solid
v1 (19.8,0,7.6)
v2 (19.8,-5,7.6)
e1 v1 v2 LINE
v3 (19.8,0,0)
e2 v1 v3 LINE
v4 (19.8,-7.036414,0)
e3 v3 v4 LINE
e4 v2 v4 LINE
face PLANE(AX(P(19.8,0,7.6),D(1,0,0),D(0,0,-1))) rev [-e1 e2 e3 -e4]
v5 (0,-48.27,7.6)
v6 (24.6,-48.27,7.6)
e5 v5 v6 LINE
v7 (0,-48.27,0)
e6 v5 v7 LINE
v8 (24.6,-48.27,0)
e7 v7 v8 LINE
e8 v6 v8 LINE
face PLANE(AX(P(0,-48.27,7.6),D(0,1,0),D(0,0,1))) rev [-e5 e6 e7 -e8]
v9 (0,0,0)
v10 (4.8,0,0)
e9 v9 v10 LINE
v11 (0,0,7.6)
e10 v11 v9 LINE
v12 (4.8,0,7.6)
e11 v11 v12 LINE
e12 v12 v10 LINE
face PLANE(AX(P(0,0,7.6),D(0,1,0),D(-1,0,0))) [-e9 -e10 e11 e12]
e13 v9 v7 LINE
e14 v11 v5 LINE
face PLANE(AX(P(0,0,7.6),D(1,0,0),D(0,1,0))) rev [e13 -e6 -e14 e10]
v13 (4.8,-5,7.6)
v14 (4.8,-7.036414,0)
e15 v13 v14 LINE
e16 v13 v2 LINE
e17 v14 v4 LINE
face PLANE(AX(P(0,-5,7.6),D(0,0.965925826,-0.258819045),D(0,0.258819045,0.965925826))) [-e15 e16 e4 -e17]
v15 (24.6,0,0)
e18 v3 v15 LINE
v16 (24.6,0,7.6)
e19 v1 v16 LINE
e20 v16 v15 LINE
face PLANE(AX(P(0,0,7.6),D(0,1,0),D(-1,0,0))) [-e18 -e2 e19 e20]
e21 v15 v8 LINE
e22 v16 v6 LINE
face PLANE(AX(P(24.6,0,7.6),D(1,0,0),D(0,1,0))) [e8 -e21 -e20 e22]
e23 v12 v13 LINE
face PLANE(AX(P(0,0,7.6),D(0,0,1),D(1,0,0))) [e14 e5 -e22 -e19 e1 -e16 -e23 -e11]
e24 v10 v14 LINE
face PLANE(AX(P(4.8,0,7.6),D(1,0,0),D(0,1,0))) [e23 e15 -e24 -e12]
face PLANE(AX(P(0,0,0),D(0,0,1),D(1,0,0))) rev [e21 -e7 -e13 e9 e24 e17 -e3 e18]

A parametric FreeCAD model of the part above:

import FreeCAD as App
import Part
import Sketcher
from FreeCAD import Vector
Q = App.Units.Quantity


def faces_at(feature, points):
    """Names of the faces that lie closest to the given points."""
    faces = feature.Shape.Faces
    near = lambda p: min(range(len(faces)), key=lambda i: faces[i].distToShape(Part.Vertex(*p))[0])
    return sorted({f"Face{near(p) + 1}" for p in points})

doc = App.newDocument("Part")
params = doc.addObject("Spreadsheet::Sheet", "Params")
for row, (alias, value) in enumerate([
    ("sketch1_width", "15 mm"),
    ("sketch1_height", "5 mm"),
    ("sketch1_width2", "4.8 mm"),
    ("sketch1_height2", "48.27 mm"),
    ("pad1_length", "7.6 mm"),
    ("draft_angle", "15 deg"),
], start=1):
    params.set(f"A{row}", alias)
    params.set(f"B{row}", "=" + value)
    params.setAlias(f"B{row}", alias)

body = doc.addObject("PartDesign::Body", "Body")

sketch1 = body.newObject("Sketcher::SketchObject", "Sketch")
sketch1.AttachmentSupport = (doc.getObject("XY_Plane"), [""])
sketch1.MapMode = "FlatFace"
sketch1.addGeometry(Part.LineSegment(Vector(4.8, 0, 0), Vector(0, 0, 0)), False)
sketch1.addGeometry(Part.LineSegment(Vector(0, 0, 0), Vector(0, -48.27, 0)), False)
sketch1.addGeometry(Part.LineSegment(Vector(0, -48.27, 0), Vector(24.6, -48.27, 0)), False)
sketch1.addGeometry(Part.LineSegment(Vector(24.6, -48.27, 0), Vector(24.6, 0, 0)), False)
sketch1.addGeometry(Part.LineSegment(Vector(24.6, 0, 0), Vector(19.8, 0, 0)), False)
sketch1.addGeometry(Part.LineSegment(Vector(19.8, 0, 0), Vector(19.8, -5, 0)), False)
sketch1.addGeometry(Part.LineSegment(Vector(19.8, -5, 0), Vector(4.8, -5, 0)), False)
sketch1.addGeometry(Part.LineSegment(Vector(4.8, -5, 0), Vector(4.8, 0, 0)), False)
sketch1.addConstraint(Sketcher.Constraint("Coincident", 0, 2, 1, 1))
sketch1.addConstraint(Sketcher.Constraint("Coincident", 1, 2, 2, 1))
sketch1.addConstraint(Sketcher.Constraint("Coincident", 2, 2, 3, 1))
sketch1.addConstraint(Sketcher.Constraint("Coincident", 3, 2, 4, 1))
sketch1.addConstraint(Sketcher.Constraint("Coincident", 4, 2, 5, 1))
sketch1.addConstraint(Sketcher.Constraint("Coincident", 5, 2, 6, 1))
sketch1.addConstraint(Sketcher.Constraint("Coincident", 6, 2, 7, 1))
sketch1.addConstraint(Sketcher.Constraint("Coincident", 7, 2, 0, 1))
sketch1.addConstraint(Sketcher.Constraint("Horizontal", 0))
sketch1.addConstraint(Sketcher.Constraint("Vertical", 1))
sketch1.addConstraint(Sketcher.Constraint("Horizontal", 2))
sketch1.addConstraint(Sketcher.Constraint("Vertical", 3))
sketch1.addConstraint(Sketcher.Constraint("Horizontal", 4))
sketch1.addConstraint(Sketcher.Constraint("Vertical", 5))
sketch1.addConstraint(Sketcher.Constraint("Horizontal", 6))
sketch1.addConstraint(Sketcher.Constraint("Vertical", 7))
sketch1.addConstraint(Sketcher.Constraint("Coincident", 0, 2, -1, 1))
sketch1.addConstraint(Sketcher.Constraint("PointOnObject", 3, 2, -1))
sketch1.addConstraint(Sketcher.Constraint("Equal", 0, 4))
sketch1.addConstraint(Sketcher.Constraint("DistanceX", 6, 2, 6, 1, Q("15 mm")))
sketch1.addConstraint(Sketcher.Constraint("DistanceY", 5, 2, 5, 1, Q("5 mm")))
sketch1.addConstraint(Sketcher.Constraint("DistanceX", 0, 2, 0, 1, Q("4.8 mm")))
sketch1.addConstraint(Sketcher.Constraint("DistanceY", 1, 2, 1, 1, Q("48.27 mm")))
sketch1.setExpression("Constraints[19]", "Params.sketch1_width")
sketch1.setExpression("Constraints[20]", "Params.sketch1_height")
sketch1.setExpression("Constraints[21]", "Params.sketch1_width2")
sketch1.setExpression("Constraints[22]", "Params.sketch1_height2")
pad1 = body.newObject("PartDesign::Pad", "Pad")
pad1.Profile = sketch1
pad1.setExpression("Length", "Params.pad1_length")
doc.recompute()

datumplane = body.newObject("PartDesign::Plane", "DatumPlane")
datumplane.AttachmentSupport = (doc.getObject("XY_Plane"), [""])
datumplane.MapMode = "FlatFace"
datumplane.AttachmentOffset = App.Placement(Vector(0, 0, 7.6), App.Rotation())
draft = body.newObject("PartDesign::Draft", "Draft")
draft.Base = (pad1, faces_at(pad1, [(12.3, -5, 3.8)]))
draft.NeutralPlane = (datumplane, [""])
draft.setExpression("Angle", "Params.draft_angle")
draft.Reversed = True

doc.recompute()
